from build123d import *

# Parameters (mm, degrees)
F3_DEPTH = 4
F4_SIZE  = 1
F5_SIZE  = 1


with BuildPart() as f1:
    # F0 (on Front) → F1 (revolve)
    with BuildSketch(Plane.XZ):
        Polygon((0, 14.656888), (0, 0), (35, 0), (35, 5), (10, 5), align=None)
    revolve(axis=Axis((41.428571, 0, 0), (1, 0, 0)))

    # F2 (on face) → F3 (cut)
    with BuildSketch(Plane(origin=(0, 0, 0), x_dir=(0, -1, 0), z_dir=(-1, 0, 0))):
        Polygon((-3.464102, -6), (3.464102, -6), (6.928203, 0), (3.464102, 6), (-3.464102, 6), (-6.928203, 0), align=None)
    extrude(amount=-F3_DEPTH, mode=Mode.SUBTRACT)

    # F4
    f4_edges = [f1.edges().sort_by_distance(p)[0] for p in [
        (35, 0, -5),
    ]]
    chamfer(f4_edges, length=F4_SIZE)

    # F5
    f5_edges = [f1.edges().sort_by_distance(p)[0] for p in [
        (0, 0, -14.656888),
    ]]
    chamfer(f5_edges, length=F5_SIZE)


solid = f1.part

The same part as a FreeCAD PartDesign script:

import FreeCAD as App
import Part
import Sketcher

V = App.Vector
Q = App.Units.Quantity


def edges_at(feature, points):
    """Names of the edges that pass closest to the given points."""
    edges = feature.Shape.Edges
    near = lambda p: min(range(len(edges)), key=lambda i: edges[i].distToShape(Part.Vertex(*p))[0])
    return sorted({f"Edge{near(p) + 1}" for p in points})


def add_polygon(sketch, points):
    """Adds a closed chain of lines whose ends are joined by coincident constraints."""
    first, n = sketch.GeometryCount, len(points)
    for a, b in zip(points, points[1:] + points[:1]):
        sketch.addGeometry(Part.LineSegment(App.Vector(*a, 0), App.Vector(*b, 0)), False)
    for i in range(n):
        sketch.addConstraint(Sketcher.Constraint("Coincident", first + i, 2, first + (i + 1) % n, 1))

doc = App.newDocument("Part")
params = doc.addObject("Spreadsheet::Sheet", "Params")
for row, (alias, value) in enumerate([
    ("sketch1_width", "35 mm"),
    ("sketch1_width2", "25 mm"),
    ("sketch1_height", "5 mm"),
    ("revolution_angle", "360 deg"),
    ("pocket1_length", "4 mm"),
    ("chamfer_size", "1 mm"),
    ("chamfer2_size", "1 mm"),
], start=1):
    params.set(f"A{row}", alias)
    params.set(f"B{row}", "=" + value)
    params.setAlias(f"B{row}", alias)

body = doc.addObject("PartDesign::Body", "Body")

# Sketch on XZ plane
sketch1 = doc.addObject("Sketcher::SketchObject", "Sketch")
body.addObject(sketch1)
sketch1.AttachmentSupport = (doc.XZ_Plane, [""])
sketch1.MapMode = "FlatFace"
add_polygon(sketch1, [(0, 14.656888), (0, 0), (35, 0), (35, 5), (10, 5)])  # lines 0-4
sketch1.addConstraint(Sketcher.Constraint("Vertical", 0))
sketch1.addConstraint(Sketcher.Constraint("Horizontal", 1))
sketch1.addConstraint(Sketcher.Constraint("Vertical", 2))
sketch1.addConstraint(Sketcher.Constraint("Horizontal", 3))
sketch1.addConstraint(Sketcher.Constraint("Coincident", 0, 2, -1, 1))
sketch1.addConstraint(Sketcher.Constraint("DistanceX", 1, 1, 1, 2, 35.0))
sketch1.addConstraint(Sketcher.Constraint("DistanceX", 3, 2, 3, 1, 25.0))
sketch1.addConstraint(Sketcher.Constraint("DistanceY", 2, 1, 2, 2, 5.0))
sketch1.addConstraint(Sketcher.Constraint("Angle", 4, Q("135.999999 deg")))
sketch1.setExpression("Constraints[10]", "Params.sketch1_width")
sketch1.setExpression("Constraints[11]", "Params.sketch1_width2")
sketch1.setExpression("Constraints[12]", "Params.sketch1_height")
revolution = doc.addObject("PartDesign::Revolution", "Revolution")
body.addObject(revolution)
revolution.Profile = sketch1
revolution.ReferenceAxis = (sketch1, ["H_Axis"])
revolution.setExpression("Angle", "Params.revolution_angle")

# Sketch on YZ plane
sketch2 = doc.addObject("Sketcher::SketchObject", "Sketch001")
body.addObject(sketch2)
sketch2.AttachmentSupport = (doc.YZ_Plane, [""])
sketch2.MapMode = "FlatFace"
add_polygon(sketch2, [(3.464102, -6), (-3.464102, -6), (-6.928203, 0), (-3.464102, 6), (3.464102, 6), (6.928203, 0)])  # lines 0-5
sketch2.addConstraint(Sketcher.Constraint("Horizontal", 0))
sketch2.addConstraint(Sketcher.Constraint("Horizontal", 3))
sketch2.addConstraint(Sketcher.Constraint("Symmetric", 0, 2, 3, 2, -1, 1))
sketch2.addConstraint(Sketcher.Constraint("Symmetric", 1, 2, 4, 2, -1, 1))
sketch2.addConstraint(Sketcher.Constraint("PointOnObject", 1, 2, -1))
sketch2.addConstraint(Sketcher.Constraint("Parallel", 2, 5))
sketch2.addConstraint(Sketcher.Constraint("Vertical", 0, 2, 2, 2))
sketch2.addConstraint(Sketcher.Constraint("Angle", 1, Q("119.999996 deg")))
sketch2.addConstraint(Sketcher.Constraint("DistanceY", 0, 2, -1, 1, 6.0))
sketch2.addConstraint(Sketcher.Constraint("DistanceX", 0, 2, -1, 1, 3.464102))
pocket1 = doc.addObject("PartDesign::Pocket", "Pocket")
body.addObject(pocket1)
pocket1.Profile = sketch2
pocket1.setExpression("Length", "Params.pocket1_length")
pocket1.Reversed = True
doc.recompute()

chamfer = doc.addObject("PartDesign::Chamfer", "Chamfer")
body.addObject(chamfer)
chamfer.Base = (pocket1, edges_at(pocket1, [(35, 0, -5)]))
chamfer.setExpression("Size", "Params.chamfer_size")
doc.recompute()

chamfer2 = doc.addObject("PartDesign::Chamfer", "Chamfer001")
body.addObject(chamfer2)
chamfer2.Base = (chamfer, edges_at(chamfer, [(0, 0, -14.657)]))
chamfer2.setExpression("Size", "Params.chamfer2_size")

doc.recompute()
